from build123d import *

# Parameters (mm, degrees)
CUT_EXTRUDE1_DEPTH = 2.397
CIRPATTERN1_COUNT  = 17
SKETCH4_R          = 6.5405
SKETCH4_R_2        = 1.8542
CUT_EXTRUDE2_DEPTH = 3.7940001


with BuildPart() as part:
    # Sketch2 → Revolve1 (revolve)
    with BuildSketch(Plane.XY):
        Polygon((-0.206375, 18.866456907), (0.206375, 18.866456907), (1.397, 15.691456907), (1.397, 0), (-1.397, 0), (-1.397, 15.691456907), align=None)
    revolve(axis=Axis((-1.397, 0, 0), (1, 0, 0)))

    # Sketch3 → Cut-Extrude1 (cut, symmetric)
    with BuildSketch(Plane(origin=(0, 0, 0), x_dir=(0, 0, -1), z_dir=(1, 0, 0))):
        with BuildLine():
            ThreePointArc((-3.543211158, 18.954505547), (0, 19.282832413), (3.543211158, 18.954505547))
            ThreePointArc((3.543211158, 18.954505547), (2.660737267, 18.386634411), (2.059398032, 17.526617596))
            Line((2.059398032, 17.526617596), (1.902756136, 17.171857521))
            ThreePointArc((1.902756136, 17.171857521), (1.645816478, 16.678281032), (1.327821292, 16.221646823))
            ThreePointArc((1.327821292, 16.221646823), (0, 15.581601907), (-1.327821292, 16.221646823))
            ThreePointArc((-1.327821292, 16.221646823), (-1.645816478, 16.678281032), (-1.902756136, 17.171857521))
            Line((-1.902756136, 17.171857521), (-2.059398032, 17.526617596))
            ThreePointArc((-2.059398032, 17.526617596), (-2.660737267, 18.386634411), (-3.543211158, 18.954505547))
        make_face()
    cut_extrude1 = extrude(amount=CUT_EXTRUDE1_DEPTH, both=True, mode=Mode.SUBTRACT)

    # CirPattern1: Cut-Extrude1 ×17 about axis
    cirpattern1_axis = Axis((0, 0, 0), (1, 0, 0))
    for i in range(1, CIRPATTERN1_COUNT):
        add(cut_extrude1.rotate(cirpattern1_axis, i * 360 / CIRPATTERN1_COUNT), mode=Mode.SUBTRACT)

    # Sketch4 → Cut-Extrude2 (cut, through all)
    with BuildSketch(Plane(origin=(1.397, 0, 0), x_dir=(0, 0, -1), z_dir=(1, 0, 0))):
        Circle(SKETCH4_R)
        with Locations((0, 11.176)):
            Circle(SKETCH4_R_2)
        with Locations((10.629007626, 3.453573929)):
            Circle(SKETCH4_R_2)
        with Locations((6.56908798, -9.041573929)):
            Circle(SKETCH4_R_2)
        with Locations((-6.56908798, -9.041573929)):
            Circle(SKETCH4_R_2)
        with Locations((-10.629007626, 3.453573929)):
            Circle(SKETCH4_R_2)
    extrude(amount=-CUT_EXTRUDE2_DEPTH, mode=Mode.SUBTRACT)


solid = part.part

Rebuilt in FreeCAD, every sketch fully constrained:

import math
import FreeCAD as App
import Part
import Sketcher
from FreeCAD import Vector
Q = App.Units.Quantity

doc = App.newDocument("Part")
body = doc.addObject("PartDesign::Body", "Body")

# Sketch on XY plane
sketch1 = doc.addObject("Sketcher::SketchObject", "Sketch")
body.addObject(sketch1)
sketch1.AttachmentSupport = (doc.XY_Plane, [""])
sketch1.MapMode = "FlatFace"
sketch1.addGeometry(Part.LineSegment(Vector(0.21, 18.87, 0), Vector(-0.21, 18.87, 0)), False)
sketch1.addGeometry(Part.LineSegment(Vector(-0.21, 18.87, 0), Vector(-1.4, 15.69, 0)), False)
sketch1.addGeometry(Part.LineSegment(Vector(-1.4, 15.69, 0), Vector(-1.4, 0, 0)), False)
sketch1.addGeometry(Part.LineSegment(Vector(-1.4, 0, 0), Vector(1.4, 0, 0)), False)
sketch1.addGeometry(Part.LineSegment(Vector(1.4, 0, 0), Vector(1.4, 15.69, 0)), False)
sketch1.addGeometry(Part.LineSegment(Vector(1.4, 15.69, 0), Vector(0.21, 18.87, 0)), False)
sketch1.addConstraint(Sketcher.Constraint("Coincident", 0, 2, 1, 1))
sketch1.addConstraint(Sketcher.Constraint("Coincident", 1, 2, 2, 1))
sketch1.addConstraint(Sketcher.Constraint("Coincident", 2, 2, 3, 1))
sketch1.addConstraint(Sketcher.Constraint("Coincident", 3, 2, 4, 1))
sketch1.addConstraint(Sketcher.Constraint("Coincident", 4, 2, 5, 1))
sketch1.addConstraint(Sketcher.Constraint("Coincident", 5, 2, 0, 1))
sketch1.addConstraint(Sketcher.Constraint("Horizontal", 0))
sketch1.addConstraint(Sketcher.Constraint("Vertical", 2))
sketch1.addConstraint(Sketcher.Constraint("Horizontal", 3))
sketch1.addConstraint(Sketcher.Constraint("Vertical", 4))
sketch1.addConstraint(Sketcher.Constraint("Symmetric", 2, 2, 3, 2, -1, 1))
sketch1.addConstraint(Sketcher.Constraint("Horizontal", 1, 2, 4, 2))
sketch1.addConstraint(Sketcher.Constraint("Equal", 1, 5))
sketch1.addConstraint(Sketcher.Constraint("DistanceX", 3, 1, 3, 2, Q("0.11 in")))
sketch1.addConstraint(Sketcher.Constraint("DistanceX", 1, 2, 0, 2, Q("0.046875 in")))
sketch1.addConstraint(Sketcher.Constraint("DistanceY", 1, 2, 0, 2, Q("0.125 in")))
sketch1.addConstraint(Sketcher.Constraint("DistanceY", 2, 2, 2, 1, 15.691457))
revolution = doc.addObject("PartDesign::Revolution", "Revolution")
body.addObject(revolution)
revolution.Profile = sketch1
revolution.ReferenceAxis = (sketch1, ["H_Axis"])
revolution.Angle = 360

# Sketch on YZ plane
sketch2 = doc.addObject("Sketcher::SketchObject", "Sketch001")
body.addObject(sketch2)
sketch2.AttachmentSupport = (doc.YZ_Plane, [""])
sketch2.MapMode = "FlatFace"
sketch2.addGeometry(Part.ArcOfCircle(Part.Circle(Vector(0, 0, 0), Vector(0, 0, 1), 19.28), math.radians(-11), math.radians(11)), False)
sketch2.addGeometry(Part.ArcOfCircle(Part.Circle(Vector(16.43, 4.54, 0), Vector(0, 0, 1), 2.72), math.radians(-66), math.radians(-22)), False)
sketch2.addGeometry(Part.LineSegment(Vector(17.53, 2.06, 0), Vector(17.17, 1.9, 0)), False)
sketch2.addGeometry(Part.ArcOfCircle(Part.Circle(Vector(18.92, -2.07, 0), Vector(0, 0, 1), 4.34), math.radians(113.82), math.radians(128.53)), False)
sketch2.addGeometry(Part.ArcOfCircle(Part.Circle(Vector(17.28, 0, 0), Vector(0, 0, 1), 1.7), math.radians(129), math.radians(231)), False)
sketch2.addGeometry(Part.ArcOfCircle(Part.Circle(Vector(18.92, 2.07, 0), Vector(0, 0, 1), 4.34), math.radians(-128.53), math.radians(-113.82)), False)
sketch2.addGeometry(Part.LineSegment(Vector(17.17, -1.9, 0), Vector(17.53, -2.06, 0)), False)
sketch2.addGeometry(Part.ArcOfCircle(Part.Circle(Vector(16.43, -4.54, 0), Vector(0, 0, 1), 2.72), math.radians(22), math.radians(66)), False)
sketch2.addConstraint(Sketcher.Constraint("Coincident", 0, 2, 1, 2))
sketch2.addConstraint(Sketcher.Constraint("Tangent", 1, 1, 2, 1))
sketch2.addConstraint(Sketcher.Constraint("Tangent", 2, 2, 3, 1))
sketch2.addConstraint(Sketcher.Constraint("Tangent", 3, 2, 4, 1))
sketch2.addConstraint(Sketcher.Constraint("Tangent", 4, 2, 5, 1))
sketch2.addConstraint(Sketcher.Constraint("Tangent", 5, 2, 6, 1))
sketch2.addConstraint(Sketcher.Constraint("Tangent", 6, 2, 7, 2))
sketch2.addConstraint(Sketcher.Constraint("Coincident", 7, 1, 0, 1))
sketch2.addConstraint(Sketcher.Constraint("Coincident", 0, 3, -1, 1))
sketch2.addConstraint(Sketcher.Constraint("Equal", 3, 5))
sketch2.addConstraint(Sketcher.Constraint("Equal", 1, 7))
sketch2.addConstraint(Sketcher.Constraint("Symmetric", 3, 3, 5, 3, -1))
sketch2.addConstraint(Sketcher.Constraint("Symmetric", 1, 3, 7, 3, -1))
sketch2.addConstraint(Sketcher.Constraint("Radius", 1, 2.71612))
sketch2.addConstraint(Sketcher.Constraint("DistanceX", 2, 2, 5, 3, Q("0.0689998 in")))
sketch2.addConstraint(Sketcher.Constraint("Radius", 0, 19.282832))
sketch2.addConstraint(Sketcher.Constraint("Radius", 3, 4.338955))
sketch2.addConstraint(Sketcher.Constraint("Radius", 4, 1.697355))
sketch2.addConstraint(Sketcher.Constraint("DistanceY", -1, 1, 1, 1, 2.059398))
sketch2.addConstraint(Sketcher.Constraint("DistanceY", 7, 3, 0, 2, 8.087299))
sketch2.addConstraint(Sketcher.Constraint("DistanceX", 2, 2, 4, 3, 0.107099))
pocket1 = doc.addObject("PartDesign::Pocket", "Pocket")
body.addObject(pocket1)
pocket1.Profile = sketch2
pocket1.Length = 4.794
pocket1.Midplane = True
doc.recompute()

polarpattern = doc.addObject("PartDesign::PolarPattern", "PolarPattern")
body.addObject(polarpattern)
polarpattern.Originals = [pocket1]
polarpattern.Axis = (doc.X_Axis, [""])
polarpattern.Angle = 360
polarpattern.Occurrences = 17
body.Tip = polarpattern

# Sketch on YZ plane
sketch3 = doc.addObject("Sketcher::SketchObject", "Sketch002")
body.addObject(sketch3)
sketch3.AttachmentSupport = (doc.YZ_Plane, [""])
sketch3.MapMode = "FlatFace"
sketch3.AttachmentOffset = App.Placement(Vector(0, 0, 0.055 * 25.4), App.Rotation())
sketch3.addGeometry(Part.Circle(Vector(0, 0, 0), Vector(0, 0, 1), 6.5), False)
sketch3.addGeometry(Part.Circle(Vector(11.2, 0, 0), Vector(0, 0, 1), 1.9), False)
sketch3.addGeometry(Part.Circle(Vector(3.5, -10.6, 0), Vector(0, 0, 1), 1.9), False)
sketch3.addGeometry(Part.Circle(Vector(-9, -6.6, 0), Vector(0, 0, 1), 1.9), False)
sketch3.addGeometry(Part.Circle(Vector(-9, 6.6, 0), Vector(0, 0, 1), 1.9), False)
sketch3.addGeometry(Part.Circle(Vector(3.5, 10.6, 0), Vector(0, 0, 1), 1.9), False)
sketch3.addConstraint(Sketcher.Constraint("Coincident", 0, 3, -1, 1))
sketch3.addConstraint(Sketcher.Constraint("Equal", 1, 2))
sketch3.addConstraint(Sketcher.Constraint("Equal", 2, 3))
sketch3.addConstraint(Sketcher.Constraint("Equal", 3, 4))
sketch3.addConstraint(Sketcher.Constraint("Equal", 4, 5))
sketch3.addConstraint(Sketcher.Constraint("Symmetric", 3, 3, 4, 3, -1))
sketch3.addConstraint(Sketcher.Constraint("Symmetric", 2, 3, 5, 3, -1))
sketch3.addConstraint(Sketcher.Constraint("PointOnObject", 1, 3, -1))
sketch3.addConstraint(Sketcher.Constraint("Diameter", 0, Q("0.515 in")))
sketch3.addConstraint(Sketcher.Constraint("Diameter", 1, Q("0.146 in")))
sketch3.addConstraint(Sketcher.Constraint("DistanceX", -1, 1, 1, 3, Q("0.44 in")))
sketch3.addConstraint(Sketcher.Constraint("DistanceY", 2, 3, 3, 3, 4.05992))
sketch3.addConstraint(Sketcher.Constraint("DistanceX", -1, 1, 2, 3, 3.453574))
sketch3.addConstraint(Sketcher.Constraint("DistanceY", 2, 3, -1, 1, 10.629008))
sketch3.addConstraint(Sketcher.Constraint("DistanceX", 3, 3, -1, 1, 9.041574))
pocket2 = doc.addObject("PartDesign::Pocket", "Pocket001")
body.addObject(pocket2)
pocket2.Profile = sketch3
pocket2.Type = "ThroughAll"

doc.recompute()
